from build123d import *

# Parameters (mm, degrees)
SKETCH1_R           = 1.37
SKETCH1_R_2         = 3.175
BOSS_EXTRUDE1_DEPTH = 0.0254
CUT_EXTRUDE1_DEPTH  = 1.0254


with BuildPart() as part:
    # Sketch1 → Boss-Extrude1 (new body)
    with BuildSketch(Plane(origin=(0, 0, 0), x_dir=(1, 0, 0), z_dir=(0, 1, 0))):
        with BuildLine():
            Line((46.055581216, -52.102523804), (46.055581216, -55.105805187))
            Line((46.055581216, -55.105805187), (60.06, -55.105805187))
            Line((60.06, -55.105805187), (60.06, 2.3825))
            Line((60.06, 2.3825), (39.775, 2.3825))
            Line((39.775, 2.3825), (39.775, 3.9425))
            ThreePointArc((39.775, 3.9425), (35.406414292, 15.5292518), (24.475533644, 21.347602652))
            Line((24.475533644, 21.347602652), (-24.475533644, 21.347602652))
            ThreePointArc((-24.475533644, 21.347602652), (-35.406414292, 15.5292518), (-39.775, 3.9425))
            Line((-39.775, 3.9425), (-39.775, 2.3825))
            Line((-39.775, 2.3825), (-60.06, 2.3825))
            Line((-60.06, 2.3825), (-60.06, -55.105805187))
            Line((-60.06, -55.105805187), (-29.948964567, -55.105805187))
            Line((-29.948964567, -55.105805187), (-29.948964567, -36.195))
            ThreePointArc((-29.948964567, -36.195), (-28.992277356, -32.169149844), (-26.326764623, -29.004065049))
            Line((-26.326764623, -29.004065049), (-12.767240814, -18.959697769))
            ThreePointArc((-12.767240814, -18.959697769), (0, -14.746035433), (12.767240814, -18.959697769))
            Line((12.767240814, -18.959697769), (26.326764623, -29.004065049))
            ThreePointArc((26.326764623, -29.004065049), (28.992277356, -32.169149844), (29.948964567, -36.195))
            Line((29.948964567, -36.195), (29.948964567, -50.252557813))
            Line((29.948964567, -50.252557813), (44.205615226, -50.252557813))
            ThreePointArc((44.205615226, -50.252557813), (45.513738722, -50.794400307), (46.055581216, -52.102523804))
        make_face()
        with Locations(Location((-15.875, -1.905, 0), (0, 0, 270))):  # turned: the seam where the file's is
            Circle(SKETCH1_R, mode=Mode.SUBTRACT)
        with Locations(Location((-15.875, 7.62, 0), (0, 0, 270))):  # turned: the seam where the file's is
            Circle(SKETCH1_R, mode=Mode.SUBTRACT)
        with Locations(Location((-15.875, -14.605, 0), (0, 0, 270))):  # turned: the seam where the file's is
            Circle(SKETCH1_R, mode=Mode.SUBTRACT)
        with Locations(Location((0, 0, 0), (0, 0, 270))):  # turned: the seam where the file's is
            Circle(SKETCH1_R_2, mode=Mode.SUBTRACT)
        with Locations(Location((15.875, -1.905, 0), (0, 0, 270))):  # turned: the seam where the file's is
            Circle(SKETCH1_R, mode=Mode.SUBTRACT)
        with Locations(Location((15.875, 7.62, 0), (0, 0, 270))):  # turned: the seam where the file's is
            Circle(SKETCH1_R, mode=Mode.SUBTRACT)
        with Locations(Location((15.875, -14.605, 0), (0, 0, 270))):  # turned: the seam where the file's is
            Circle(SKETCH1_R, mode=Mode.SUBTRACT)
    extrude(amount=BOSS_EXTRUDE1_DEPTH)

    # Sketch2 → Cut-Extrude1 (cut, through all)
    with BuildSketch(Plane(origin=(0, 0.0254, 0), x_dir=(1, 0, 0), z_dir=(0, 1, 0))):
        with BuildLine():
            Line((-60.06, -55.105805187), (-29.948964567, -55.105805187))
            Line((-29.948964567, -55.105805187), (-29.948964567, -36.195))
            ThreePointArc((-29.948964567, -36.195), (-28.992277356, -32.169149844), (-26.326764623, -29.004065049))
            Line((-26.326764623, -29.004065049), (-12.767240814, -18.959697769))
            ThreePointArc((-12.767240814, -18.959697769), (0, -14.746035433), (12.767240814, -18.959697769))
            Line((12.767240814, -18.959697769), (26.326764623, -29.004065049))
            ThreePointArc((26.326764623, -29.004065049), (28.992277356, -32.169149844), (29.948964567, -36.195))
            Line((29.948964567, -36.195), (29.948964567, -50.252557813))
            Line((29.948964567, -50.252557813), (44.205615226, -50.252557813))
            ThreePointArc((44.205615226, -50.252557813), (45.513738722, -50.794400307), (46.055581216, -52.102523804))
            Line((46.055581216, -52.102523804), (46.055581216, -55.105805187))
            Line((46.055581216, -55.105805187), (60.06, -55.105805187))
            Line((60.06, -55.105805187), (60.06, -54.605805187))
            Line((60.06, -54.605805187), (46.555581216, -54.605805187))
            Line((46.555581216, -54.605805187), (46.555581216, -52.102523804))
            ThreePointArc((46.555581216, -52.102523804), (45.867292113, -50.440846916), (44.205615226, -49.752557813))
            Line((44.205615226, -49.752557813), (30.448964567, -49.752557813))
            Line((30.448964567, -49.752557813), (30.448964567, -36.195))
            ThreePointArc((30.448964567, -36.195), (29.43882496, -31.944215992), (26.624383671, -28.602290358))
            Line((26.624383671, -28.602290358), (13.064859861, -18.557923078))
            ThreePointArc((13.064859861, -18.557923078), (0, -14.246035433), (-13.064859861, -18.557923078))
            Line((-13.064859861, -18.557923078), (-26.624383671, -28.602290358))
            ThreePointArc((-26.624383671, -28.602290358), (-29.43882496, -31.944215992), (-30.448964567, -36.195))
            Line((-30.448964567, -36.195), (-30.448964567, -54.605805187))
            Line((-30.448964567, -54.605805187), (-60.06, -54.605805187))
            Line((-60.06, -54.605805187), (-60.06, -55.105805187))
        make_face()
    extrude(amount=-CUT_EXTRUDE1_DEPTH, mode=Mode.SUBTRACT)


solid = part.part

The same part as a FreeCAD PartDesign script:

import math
import FreeCAD as App
import Part
import Sketcher

V = App.Vector
Q = App.Units.Quantity

doc = App.newDocument("Part")
body = doc.addObject("PartDesign::Body", "Body")

# Sketch on XZ plane
sketch1 = body.newObject("Sketcher::SketchObject", "Sketch")
sketch1.AttachmentSupport = (doc.getObject("XZ_Plane"), [""])
sketch1.MapMode = "FlatFace"
sketch1.addGeometry([
    Part.LineSegment(V(46.1, 52.1, 0), V(46.1, 55.1, 0)),  # 0
    Part.LineSegment(V(46.1, 55.1, 0), V(60.1, 55.1, 0)),  # 1
    Part.LineSegment(V(60.1, 55.1, 0), V(60.1, -2.4, 0)),  # 2
    Part.LineSegment(V(60.1, -2.4, 0), V(39.8, -2.4, 0)),  # 3
    Part.LineSegment(V(39.8, -2.4, 0), V(39.8, -3.9, 0)),  # 4
    Part.ArcOfCircle(Part.Circle(V(22.2, -3.9, 0), V(0, 0, 1), 17.5), math.radians(-83), math.radians(0)),  # 5
    Part.LineSegment(V(24.5, -21.3, 0), V(-24.5, -21.3, 0)),  # 6
    Part.ArcOfCircle(Part.Circle(V(-22.2, -3.9, 0), V(0, 0, 1), 17.5), math.radians(180), math.radians(263)),  # 7
    Part.LineSegment(V(-39.8, -3.9, 0), V(-39.8, -2.4, 0)),  # 8
    Part.LineSegment(V(-39.8, -2.4, 0), V(-60.1, -2.4, 0)),  # 9
    Part.LineSegment(V(-60.1, -2.4, 0), V(-60.1, 55.1, 0)),  # 10
    Part.LineSegment(V(-60.1, 55.1, 0), V(-29.9, 55.1, 0)),  # 11
    Part.LineSegment(V(-29.9, 55.1, 0), V(-29.9, 36.2, 0)),  # 12
    Part.ArcOfCircle(Part.Circle(V(-21, 36.2, 0), V(0, 0, 1), 8.9), math.radians(-180), math.radians(-127)),  # 13
    Part.LineSegment(V(-26.3, 29, 0), V(-12.8, 19, 0)),  # 14
    Part.ArcOfCircle(Part.Circle(V(0, 36.2, 0), V(0, 0, 1), 21.4), math.radians(-127), math.radians(-53)),  # 15
    Part.LineSegment(V(12.8, 19, 0), V(26.3, 29, 0)),  # 16
    Part.ArcOfCircle(Part.Circle(V(21, 36.2, 0), V(0, 0, 1), 8.9), math.radians(-53), math.radians(0)),  # 17
    Part.LineSegment(V(29.9, 36.2, 0), V(29.9, 50.3, 0)),  # 18
    Part.LineSegment(V(29.9, 50.3, 0), V(44.2, 50.3, 0)),  # 19
    Part.ArcOfCircle(Part.Circle(V(44.2, 52.1, 0), V(0, 0, 1), 1.8), math.radians(-90), math.radians(0)),  # 20
    Part.Circle(V(-15.9, 14.6, 0), V(0, 0, 1), 1.4),  # 21
    Part.Circle(V(15.9, 14.6, 0), V(0, 0, 1), 1.4),  # 22
    Part.Circle(V(-15.9, 1.9, 0), V(0, 0, 1), 1.4),  # 23
    Part.Circle(V(-15.9, -7.6, 0), V(0, 0, 1), 1.4),  # 24
    Part.Circle(V(0, 0, 0), V(0, 0, 1), 3.2),  # 25
    Part.Circle(V(15.9, 1.9, 0), V(0, 0, 1), 1.4),  # 26
    Part.Circle(V(15.9, -7.6, 0), V(0, 0, 1), 1.4),  # 27
], False)
sketch1.addConstraint([
    Sketcher.Constraint("Coincident", 0, 2, 1, 1),
    Sketcher.Constraint("Coincident", 1, 2, 2, 1),
    Sketcher.Constraint("Coincident", 2, 2, 3, 1),
    Sketcher.Constraint("Coincident", 3, 2, 4, 1),
    Sketcher.Constraint("Tangent", 4, 2, 5, 2),
    Sketcher.Constraint("Coincident", 5, 1, 6, 1),
    Sketcher.Constraint("Coincident", 6, 2, 7, 2),
    Sketcher.Constraint("Tangent", 7, 1, 8, 1),
    Sketcher.Constraint("Coincident", 8, 2, 9, 1),
    Sketcher.Constraint("Coincident", 9, 2, 10, 1),
    Sketcher.Constraint("Coincident", 10, 2, 11, 1),
    Sketcher.Constraint("Coincident", 11, 2, 12, 1),
    Sketcher.Constraint("Tangent", 12, 2, 13, 1),
    Sketcher.Constraint("Tangent", 13, 2, 14, 1),
    Sketcher.Constraint("Tangent", 14, 2, 15, 1),
    Sketcher.Constraint("Tangent", 15, 2, 16, 1),
    Sketcher.Constraint("Tangent", 16, 2, 17, 1),
    Sketcher.Constraint("Tangent", 17, 2, 18, 1),
    Sketcher.Constraint("Coincident", 18, 2, 19, 1),
    Sketcher.Constraint("Tangent", 19, 2, 20, 1),
    Sketcher.Constraint("Tangent", 20, 2, 0, 1),
    Sketcher.Constraint("Vertical", 0),
    Sketcher.Constraint("Horizontal", 1),
    Sketcher.Constraint("Vertical", 2),
    Sketcher.Constraint("Horizontal", 3),
    Sketcher.Constraint("Vertical", 4),
    Sketcher.Constraint("Horizontal", 6),
    Sketcher.Constraint("Vertical", 8),
    Sketcher.Constraint("Horizontal", 9),
    Sketcher.Constraint("Vertical", 10),
    Sketcher.Constraint("Horizontal", 11),
    Sketcher.Constraint("Vertical", 12),
    Sketcher.Constraint("Vertical", 18),
    Sketcher.Constraint("Horizontal", 19),
    Sketcher.Constraint("Coincident", 25, 3, -1, 1),
    Sketcher.Constraint("Equal", 5, 7),
    Sketcher.Constraint("Equal", 13, 17),
    Sketcher.Constraint("Equal", 21, 22),
    Sketcher.Constraint("Equal", 22, 23),
    Sketcher.Constraint("Equal", 23, 24),
    Sketcher.Constraint("Equal", 24, 26),
    Sketcher.Constraint("Equal", 26, 27),
    Sketcher.Constraint("Symmetric", 5, 3, 7, 3, -2),
    Sketcher.Constraint("Symmetric", 13, 3, 17, 3, -2),
    Sketcher.Constraint("Symmetric", 21, 3, 22, 3, -2),
    Sketcher.Constraint("Symmetric", 23, 3, 26, 3, -2),
    Sketcher.Constraint("Symmetric", 24, 3, 27, 3, -2),
    Sketcher.Constraint("Symmetric", 2, 2, 9, 2, -2),
    Sketcher.Constraint("PointOnObject", 15, 3, -2),
    Sketcher.Constraint("Horizontal", 13, 3, 15, 3),
    Sketcher.Constraint("Horizontal", 1, 2, 10, 2),
    Sketcher.Constraint("Vertical", 21, 3, 23, 3),
    Sketcher.Constraint("Vertical", 23, 3, 24, 3),
    Sketcher.Constraint("Diameter", 21, Q("2.74 mm")),
    Sketcher.Constraint("Diameter", 25, Q("6.35 mm")),
    Sketcher.Constraint("Radius", 5, Q("17.55 mm")),
    Sketcher.Constraint("DistanceX", 13, 3, -1, 1, Q("21 mm")),
    Sketcher.Constraint("DistanceY", 4, 2, 4, 1, Q("1.56 mm")),
    Sketcher.Constraint("DistanceX", 21, 3, 5, 3, Q("38.1 mm")),
    Sketcher.Constraint("DistanceY", 23, 3, 21, 3, Q("12.7 mm")),
    Sketcher.Constraint("DistanceX", 26, 3, 3, 2, Q("23.9 mm")),
    Sketcher.Constraint("DistanceX", 3, 2, 3, 1, Q("20.285 mm")),
    Sketcher.Constraint("DistanceY", 24, 3, -1, 1, Q("7.62 mm")),
    Sketcher.Constraint("DistanceY", 21, 3, 13, 3, Q("21.59 mm")),
    Sketcher.Constraint("DistanceY", -1, 1, 13, 3, Q("36.195 mm")),
    Sketcher.Constraint("Radius", 13, Q("8.948965 mm")),
    Sketcher.Constraint("Radius", 15, Q("21.448965 mm")),
    Sketcher.Constraint("Radius", 20, Q("1.849966 mm")),
    Sketcher.Constraint("DistanceX", 1, 1, 1, 2, Q("14.004419 mm")),
    Sketcher.Constraint("DistanceY", 0, 1, 0, 2, Q("3.003281 mm")),
    Sketcher.Constraint("DistanceY", 5, 3, -1, 1, Q("3.9425 mm")),
    Sketcher.Constraint("DistanceX", 6, 2, 6, 1, Q("48.951067 mm")),
    Sketcher.Constraint("DistanceY", 2, 2, 2, 1, Q("57.488305 mm")),
])
pad1 = body.newObject("PartDesign::Pad", "Pad")
pad1.Profile = sketch1
pad1.Length = 0.0254
pad1.Reversed = True

# Sketch on XZ plane
sketch2 = body.newObject("Sketcher::SketchObject", "Sketch001")
sketch2.AttachmentSupport = (doc.getObject("XZ_Plane"), [""])
sketch2.MapMode = "FlatFace"
sketch2.AttachmentOffset = App.Placement(V(0, 0, -0.0254), App.Rotation())
sketch2.addGeometry([
    Part.LineSegment(V(-60.1, 55.1, 0), V(-29.9, 55.1, 0)),  # 0
    Part.LineSegment(V(-29.9, 55.1, 0), V(-29.9, 36.2, 0)),  # 1
    Part.ArcOfCircle(Part.Circle(V(-21, 36.2, 0), V(0, 0, 1), 8.9), math.radians(-180), math.radians(-127)),  # 2
    Part.LineSegment(V(-26.3, 29, 0), V(-12.8, 19, 0)),  # 3
    Part.ArcOfCircle(Part.Circle(V(0, 36.2, 0), V(0, 0, 1), 21.4), math.radians(-127), math.radians(-53)),  # 4
    Part.LineSegment(V(12.8, 19, 0), V(26.3, 29, 0)),  # 5
    Part.ArcOfCircle(Part.Circle(V(21, 36.2, 0), V(0, 0, 1), 8.9), math.radians(-53), math.radians(0)),  # 6
    Part.LineSegment(V(29.9, 36.2, 0), V(29.9, 50.3, 0)),  # 7
    Part.LineSegment(V(29.9, 50.3, 0), V(44.2, 50.3, 0)),  # 8
    Part.ArcOfCircle(Part.Circle(V(44.2, 52.1, 0), V(0, 0, 1), 1.8), math.radians(-90), math.radians(0)),  # 9
    Part.LineSegment(V(46.1, 52.1, 0), V(46.1, 55.1, 0)),  # 10
    Part.LineSegment(V(46.1, 55.1, 0), V(60.1, 55.1, 0)),  # 11
    Part.LineSegment(V(60.1, 55.1, 0), V(60.1, 54.6, 0)),  # 12
    Part.LineSegment(V(60.1, 54.6, 0), V(46.6, 54.6, 0)),  # 13
    Part.LineSegment(V(46.6, 54.6, 0), V(46.6, 52.1, 0)),  # 14
    Part.ArcOfCircle(Part.Circle(V(44.2, 52.1, 0), V(0, 0, 1), 2.3), math.radians(-90), math.radians(0)),  # 15
    Part.LineSegment(V(44.2, 49.8, 0), V(30.4, 49.8, 0)),  # 16
    Part.LineSegment(V(30.4, 49.8, 0), V(30.4, 36.2, 0)),  # 17
    Part.ArcOfCircle(Part.Circle(V(21, 36.2, 0), V(0, 0, 1), 9.4), math.radians(-53), math.radians(0)),  # 18
    Part.LineSegment(V(26.6, 28.6, 0), V(13.1, 18.6, 0)),  # 19
    Part.ArcOfCircle(Part.Circle(V(0, 36.2, 0), V(0, 0, 1), 21.9), math.radians(-127), math.radians(-53)),  # 20
    Part.LineSegment(V(-13.1, 18.6, 0), V(-26.6, 28.6, 0)),  # 21
    Part.ArcOfCircle(Part.Circle(V(-21, 36.2, 0), V(0, 0, 1), 9.4), math.radians(180), math.radians(233)),  # 22
    Part.LineSegment(V(-30.4, 36.2, 0), V(-30.4, 54.6, 0)),  # 23
    Part.LineSegment(V(-30.4, 54.6, 0), V(-60.1, 54.6, 0)),  # 24
    Part.LineSegment(V(-60.1, 54.6, 0), V(-60.1, 55.1, 0)),  # 25
], False)
sketch2.addConstraint([
    Sketcher.Constraint("Coincident", 0, 2, 1, 1),
    Sketcher.Constraint("Tangent", 1, 2, 2, 1),
    Sketcher.Constraint("Tangent", 2, 2, 3, 1),
    Sketcher.Constraint("Tangent", 3, 2, 4, 1),
    Sketcher.Constraint("Tangent", 4, 2, 5, 1),
    Sketcher.Constraint("Tangent", 5, 2, 6, 1),
    Sketcher.Constraint("Tangent", 6, 2, 7, 1),
    Sketcher.Constraint("Coincident", 7, 2, 8, 1),
    Sketcher.Constraint("Tangent", 8, 2, 9, 1),
    Sketcher.Constraint("Tangent", 9, 2, 10, 1),
    Sketcher.Constraint("Coincident", 10, 2, 11, 1),
    Sketcher.Constraint("Coincident", 11, 2, 12, 1),
    Sketcher.Constraint("Coincident", 12, 2, 13, 1),
    Sketcher.Constraint("Coincident", 13, 2, 14, 1),
    Sketcher.Constraint("Tangent", 14, 2, 15, 2),
    Sketcher.Constraint("Tangent", 15, 1, 16, 1),
    Sketcher.Constraint("Coincident", 16, 2, 17, 1),
    Sketcher.Constraint("Tangent", 17, 2, 18, 2),
    Sketcher.Constraint("Tangent", 18, 1, 19, 1),
    Sketcher.Constraint("Tangent", 19, 2, 20, 2),
    Sketcher.Constraint("Tangent", 20, 1, 21, 1),
    Sketcher.Constraint("Tangent", 21, 2, 22, 2),
    Sketcher.Constraint("Tangent", 22, 1, 23, 1),
    Sketcher.Constraint("Coincident", 23, 2, 24, 1),
    Sketcher.Constraint("Coincident", 24, 2, 25, 1),
    Sketcher.Constraint("Coincident", 25, 2, 0, 1),
    Sketcher.Constraint("Horizontal", 0),
    Sketcher.Constraint("Vertical", 1),
    Sketcher.Constraint("Vertical", 7),
    Sketcher.Constraint("Horizontal", 8),
    Sketcher.Constraint("Vertical", 10),
    Sketcher.Constraint("Horizontal", 11),
    Sketcher.Constraint("Vertical", 12),
    Sketcher.Constraint("Horizontal", 13),
    Sketcher.Constraint("Vertical", 14),
    Sketcher.Constraint("Horizontal", 16),
    Sketcher.Constraint("Vertical", 17),
    Sketcher.Constraint("Vertical", 23),
    Sketcher.Constraint("Horizontal", 24),
    Sketcher.Constraint("Vertical", 25),
    Sketcher.Constraint("Coincident", 15, 3, 9, 3),
    Sketcher.Constraint("Coincident", 18, 3, 6, 3),
    Sketcher.Constraint("Coincident", 20, 3, 4, 3),
    Sketcher.Constraint("Coincident", 22, 3, 2, 3),
    Sketcher.Constraint("Equal", 2, 6),
    Sketcher.Constraint("Equal", 18, 22),
    Sketcher.Constraint("Symmetric", 2, 3, 6, 3, -2),
    Sketcher.Constraint("Symmetric", 12, 2, 24, 2, -2),
    Sketcher.Constraint("PointOnObject", 4, 3, -2),
    Sketcher.Constraint("Parallel", 5, 19),
    Sketcher.Constraint("Horizontal", 2, 3, 4, 3),
    Sketcher.Constraint("Horizontal", 0, 2, 10, 2),
    Sketcher.Constraint("DistanceY", 12, 2, 12, 1, Q("0.5 mm")),
    Sketcher.Constraint("DistanceX", 2, 3, -1, 1, Q("21 mm")),
    Sketcher.Constraint("DistanceX", 10, 2, 13, 2, Q("0.5 mm")),
    Sketcher.Constraint("DistanceX", 7, 2, 16, 2, Q("0.5 mm")),
    Sketcher.Constraint("DistanceX", -1, 1, 11, 2, Q("60.06 mm")),
    Sketcher.Constraint("DistanceY", -1, 1, 2, 3, Q("36.195 mm")),
    Sketcher.Constraint("Radius", 2, Q("8.948965 mm")),
    Sketcher.Constraint("Radius", 4, Q("21.448965 mm")),
    Sketcher.Constraint("Radius", 9, Q("1.849966 mm")),
    Sketcher.Constraint("DistanceX", 8, 1, 8, 2, Q("14.256651 mm")),
    Sketcher.Constraint("DistanceY", 10, 1, 10, 2, Q("3.003281 mm")),
    Sketcher.Constraint("DistanceY", 1, 2, 1, 1, Q("18.910805 mm")),
])
pocket1 = body.newObject("PartDesign::Pocket", "Pocket")
pocket1.Profile = sketch2
pocket1.Type = "ThroughAll"
pocket1.Reversed = True

doc.recompute()
